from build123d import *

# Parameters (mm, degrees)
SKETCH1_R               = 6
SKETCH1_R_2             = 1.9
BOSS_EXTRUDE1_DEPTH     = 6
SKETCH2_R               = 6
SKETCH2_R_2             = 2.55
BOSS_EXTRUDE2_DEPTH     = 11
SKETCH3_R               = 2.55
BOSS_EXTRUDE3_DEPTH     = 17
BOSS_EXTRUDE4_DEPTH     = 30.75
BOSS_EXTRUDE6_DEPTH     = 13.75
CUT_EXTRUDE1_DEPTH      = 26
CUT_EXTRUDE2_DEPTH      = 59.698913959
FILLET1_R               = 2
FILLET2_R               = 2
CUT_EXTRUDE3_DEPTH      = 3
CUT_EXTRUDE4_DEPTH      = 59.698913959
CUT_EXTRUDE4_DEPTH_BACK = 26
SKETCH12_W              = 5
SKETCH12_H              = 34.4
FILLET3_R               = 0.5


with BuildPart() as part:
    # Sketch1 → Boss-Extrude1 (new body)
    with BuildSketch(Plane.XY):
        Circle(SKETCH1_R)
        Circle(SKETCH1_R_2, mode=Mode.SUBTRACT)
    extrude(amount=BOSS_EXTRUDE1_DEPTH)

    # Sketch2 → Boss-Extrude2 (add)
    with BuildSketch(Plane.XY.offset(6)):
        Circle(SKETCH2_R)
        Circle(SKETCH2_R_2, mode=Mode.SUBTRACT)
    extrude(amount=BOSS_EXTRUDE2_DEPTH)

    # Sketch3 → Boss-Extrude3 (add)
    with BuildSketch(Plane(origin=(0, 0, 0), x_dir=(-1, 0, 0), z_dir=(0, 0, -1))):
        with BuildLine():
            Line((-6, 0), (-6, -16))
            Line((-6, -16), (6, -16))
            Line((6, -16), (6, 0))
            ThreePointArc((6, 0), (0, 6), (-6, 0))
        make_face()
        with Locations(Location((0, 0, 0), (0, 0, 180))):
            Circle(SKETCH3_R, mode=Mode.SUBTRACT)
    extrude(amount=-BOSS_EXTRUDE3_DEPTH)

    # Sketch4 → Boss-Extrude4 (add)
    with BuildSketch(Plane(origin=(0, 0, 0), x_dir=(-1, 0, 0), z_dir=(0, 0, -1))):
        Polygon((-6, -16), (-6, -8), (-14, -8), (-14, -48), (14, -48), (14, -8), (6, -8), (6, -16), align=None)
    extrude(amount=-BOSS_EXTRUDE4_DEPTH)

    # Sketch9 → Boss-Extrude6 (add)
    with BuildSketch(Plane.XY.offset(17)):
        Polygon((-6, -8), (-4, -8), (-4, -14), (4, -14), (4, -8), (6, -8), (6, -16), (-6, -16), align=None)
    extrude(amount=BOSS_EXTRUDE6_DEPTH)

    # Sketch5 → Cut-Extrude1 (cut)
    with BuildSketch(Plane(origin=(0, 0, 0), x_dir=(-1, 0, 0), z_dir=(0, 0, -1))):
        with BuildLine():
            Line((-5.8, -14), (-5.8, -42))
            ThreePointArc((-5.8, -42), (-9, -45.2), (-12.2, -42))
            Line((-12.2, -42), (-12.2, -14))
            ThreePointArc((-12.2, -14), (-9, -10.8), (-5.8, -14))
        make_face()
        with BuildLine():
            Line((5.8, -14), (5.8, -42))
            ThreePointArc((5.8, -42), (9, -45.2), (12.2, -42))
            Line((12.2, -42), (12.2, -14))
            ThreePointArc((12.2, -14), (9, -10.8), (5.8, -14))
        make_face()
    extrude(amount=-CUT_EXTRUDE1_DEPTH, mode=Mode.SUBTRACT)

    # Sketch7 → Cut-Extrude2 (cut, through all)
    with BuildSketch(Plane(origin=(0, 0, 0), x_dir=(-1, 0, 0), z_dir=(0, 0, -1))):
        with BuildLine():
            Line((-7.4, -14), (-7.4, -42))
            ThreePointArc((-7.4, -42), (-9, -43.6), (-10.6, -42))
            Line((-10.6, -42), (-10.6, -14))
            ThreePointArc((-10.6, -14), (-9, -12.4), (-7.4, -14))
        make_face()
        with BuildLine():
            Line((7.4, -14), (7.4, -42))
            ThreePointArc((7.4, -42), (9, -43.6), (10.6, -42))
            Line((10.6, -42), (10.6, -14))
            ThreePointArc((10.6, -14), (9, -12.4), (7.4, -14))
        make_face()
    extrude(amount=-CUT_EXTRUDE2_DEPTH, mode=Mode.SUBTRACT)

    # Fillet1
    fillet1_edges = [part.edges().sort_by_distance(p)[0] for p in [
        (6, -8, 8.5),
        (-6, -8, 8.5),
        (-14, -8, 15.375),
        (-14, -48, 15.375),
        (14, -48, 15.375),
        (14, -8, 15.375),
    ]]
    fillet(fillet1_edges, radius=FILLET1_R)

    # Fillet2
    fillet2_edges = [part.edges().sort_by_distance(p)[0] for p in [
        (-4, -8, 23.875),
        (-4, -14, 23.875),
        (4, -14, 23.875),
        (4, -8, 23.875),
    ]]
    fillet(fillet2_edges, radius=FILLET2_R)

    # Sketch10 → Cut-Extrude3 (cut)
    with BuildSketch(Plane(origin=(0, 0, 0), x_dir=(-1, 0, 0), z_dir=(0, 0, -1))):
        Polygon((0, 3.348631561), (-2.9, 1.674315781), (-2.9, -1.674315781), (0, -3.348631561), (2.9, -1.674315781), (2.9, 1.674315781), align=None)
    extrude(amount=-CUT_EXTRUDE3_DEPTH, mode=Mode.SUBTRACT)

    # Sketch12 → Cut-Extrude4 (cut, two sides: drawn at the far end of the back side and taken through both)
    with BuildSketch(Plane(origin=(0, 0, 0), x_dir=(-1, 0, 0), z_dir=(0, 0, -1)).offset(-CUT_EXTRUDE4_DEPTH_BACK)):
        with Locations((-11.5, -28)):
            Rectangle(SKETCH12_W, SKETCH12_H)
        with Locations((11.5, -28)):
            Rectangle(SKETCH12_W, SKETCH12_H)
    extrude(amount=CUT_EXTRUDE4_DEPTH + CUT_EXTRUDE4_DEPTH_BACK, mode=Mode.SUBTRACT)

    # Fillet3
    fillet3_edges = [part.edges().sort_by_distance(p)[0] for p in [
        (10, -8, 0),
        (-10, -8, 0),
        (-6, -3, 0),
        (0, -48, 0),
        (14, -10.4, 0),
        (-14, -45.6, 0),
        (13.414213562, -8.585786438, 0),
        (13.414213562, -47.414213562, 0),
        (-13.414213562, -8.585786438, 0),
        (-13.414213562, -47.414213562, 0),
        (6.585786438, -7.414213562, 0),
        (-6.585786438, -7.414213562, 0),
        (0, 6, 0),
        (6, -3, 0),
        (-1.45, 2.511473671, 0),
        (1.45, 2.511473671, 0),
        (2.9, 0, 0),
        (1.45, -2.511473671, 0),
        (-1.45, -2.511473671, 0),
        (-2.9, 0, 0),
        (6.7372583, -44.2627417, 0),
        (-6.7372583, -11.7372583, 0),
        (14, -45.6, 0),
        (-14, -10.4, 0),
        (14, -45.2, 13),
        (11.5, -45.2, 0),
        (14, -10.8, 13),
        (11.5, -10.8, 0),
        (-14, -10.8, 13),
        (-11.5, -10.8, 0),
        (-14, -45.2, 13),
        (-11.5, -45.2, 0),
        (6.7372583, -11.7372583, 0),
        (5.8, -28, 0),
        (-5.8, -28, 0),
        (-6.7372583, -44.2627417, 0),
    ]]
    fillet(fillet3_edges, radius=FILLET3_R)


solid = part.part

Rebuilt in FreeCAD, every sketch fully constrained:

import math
import FreeCAD as App
import Part
import Sketcher
from FreeCAD import Vector
Q = App.Units.Quantity


def edges_at(feature, points):
    """Names of the edges that pass closest to the given points."""
    edges = feature.Shape.Edges
    near = lambda p: min(range(len(edges)), key=lambda i: edges[i].distToShape(Part.Vertex(*p))[0])
    return sorted({f"Edge{near(p) + 1}" for p in points})

doc = App.newDocument("Part")
body = doc.addObject("PartDesign::Body", "Body")

sketch1 = doc.addObject("Sketcher::SketchObject", "Sketch")
body.addObject(sketch1)
sketch1.AttachmentSupport = (doc.XY_Plane, [""])
sketch1.MapMode = "FlatFace"
sketch1.addGeometry([
    Part.Circle(Vector(0, 0, 0), Vector(0, 0, 1), 6),
    Part.Circle(Vector(0, 0, 0), Vector(0, 0, 1), 1.9),
], False)
sketch1.addConstraint([
    Sketcher.Constraint("Coincident", 0, 3, -1, 1),
    Sketcher.Constraint("Coincident", 1, 3, -1, 1),
    Sketcher.Constraint("Diameter", 0, Q("12 mm")),
    Sketcher.Constraint("Diameter", 1, Q("3.8 mm")),
])
pad1 = doc.addObject("PartDesign::Pad", "Pad")
body.addObject(pad1)
pad1.Profile = sketch1
pad1.Length = 6

sketch2 = doc.addObject("Sketcher::SketchObject", "Sketch001")
body.addObject(sketch2)
sketch2.AttachmentSupport = (doc.XY_Plane, [""])
sketch2.MapMode = "FlatFace"
sketch2.AttachmentOffset = App.Placement(Vector(0, 0, 6), App.Rotation())
sketch2.addGeometry([
    Part.Circle(Vector(0, 0, 0), Vector(0, 0, 1), 6),
    Part.Circle(Vector(0, 0, 0), Vector(0, 0, 1), 2.5),
], False)
sketch2.addConstraint([
    Sketcher.Constraint("Coincident", 0, 3, -1, 1),
    Sketcher.Constraint("Coincident", 1, 3, -1, 1),
    Sketcher.Constraint("Diameter", 0, Q("12 mm")),
    Sketcher.Constraint("Diameter", 1, Q("5.1 mm")),
])
pad2 = doc.addObject("PartDesign::Pad", "Pad001")
body.addObject(pad2)
pad2.Profile = sketch2
pad2.Length = 11

sketch3 = doc.addObject("Sketcher::SketchObject", "Sketch002")
body.addObject(sketch3)
sketch3.AttachmentSupport = (doc.XY_Plane, [""])
sketch3.MapMode = "FlatFace"
sketch3.addGeometry([
    Part.LineSegment(Vector(6, 0, 0), Vector(6, -16, 0)),
    Part.LineSegment(Vector(6, -16, 0), Vector(-6, -16, 0)),
    Part.LineSegment(Vector(-6, -16, 0), Vector(-6, 0, 0)),
    Part.ArcOfCircle(Part.Circle(Vector(0, 0, 0), Vector(0, 0, 1), 6), math.radians(0), math.radians(180)),
    Part.Circle(Vector(0, 0, 0), Vector(0, 0, 1), 2.5),
], False)
sketch3.addConstraint([
    Sketcher.Constraint("Coincident", 0, 2, 1, 1),
    Sketcher.Constraint("Coincident", 1, 2, 2, 1),
    Sketcher.Constraint("Tangent", 2, 2, 3, 2),
    Sketcher.Constraint("Tangent", 3, 1, 0, 1),
    Sketcher.Constraint("Vertical", 0),
    Sketcher.Constraint("Horizontal", 1),
    Sketcher.Constraint("Vertical", 2),
    Sketcher.Constraint("Coincident", 3, 3, -1, 1),
    Sketcher.Constraint("Coincident", 4, 3, -1, 1),
    Sketcher.Constraint("Radius", 3, Q("6 mm")),
    Sketcher.Constraint("Diameter", 4, Q("5.1 mm")),
    Sketcher.Constraint("DistanceY", 0, 2, 0, 1, Q("16 mm")),
])
pad3 = doc.addObject("PartDesign::Pad", "Pad002")
body.addObject(pad3)
pad3.Profile = sketch3
pad3.Length = 17

sketch4 = doc.addObject("Sketcher::SketchObject", "Sketch003")
body.addObject(sketch4)
sketch4.AttachmentSupport = (doc.XY_Plane, [""])
sketch4.MapMode = "FlatFace"
sketch4.addGeometry([
    Part.LineSegment(Vector(6, -16, 0), Vector(6, -8, 0)),
    Part.LineSegment(Vector(6, -8, 0), Vector(14, -8, 0)),
    Part.LineSegment(Vector(14, -8, 0), Vector(14, -48, 0)),
    Part.LineSegment(Vector(14, -48, 0), Vector(-14, -48, 0)),
    Part.LineSegment(Vector(-14, -48, 0), Vector(-14, -8, 0)),
    Part.LineSegment(Vector(-14, -8, 0), Vector(-6, -8, 0)),
    Part.LineSegment(Vector(-6, -8, 0), Vector(-6, -16, 0)),
    Part.LineSegment(Vector(-6, -16, 0), Vector(6, -16, 0)),
], False)
sketch4.addConstraint([
    Sketcher.Constraint("Coincident", 0, 2, 1, 1),
    Sketcher.Constraint("Coincident", 1, 2, 2, 1),
    Sketcher.Constraint("Coincident", 2, 2, 3, 1),
    Sketcher.Constraint("Coincident", 3, 2, 4, 1),
    Sketcher.Constraint("Coincident", 4, 2, 5, 1),
    Sketcher.Constraint("Coincident", 5, 2, 6, 1),
    Sketcher.Constraint("Coincident", 6, 2, 7, 1),
    Sketcher.Constraint("Coincident", 7, 2, 0, 1),
    Sketcher.Constraint("Vertical", 0),
    Sketcher.Constraint("Horizontal", 1),
    Sketcher.Constraint("Vertical", 2),
    Sketcher.Constraint("Horizontal", 3),
    Sketcher.Constraint("Vertical", 4),
    Sketcher.Constraint("Horizontal", 5),
    Sketcher.Constraint("Vertical", 6),
    Sketcher.Constraint("Horizontal", 7),
    Sketcher.Constraint("Symmetric", 1, 2, 4, 2, -2),
    Sketcher.Constraint("Equal", 1, 5),
    Sketcher.Constraint("Equal", 5, 0),
    Sketcher.Constraint("DistanceX", 1, 1, 1, 2, Q("8 mm")),
    Sketcher.Constraint("DistanceX", 3, 2, 3, 1, Q("28 mm")),
    Sketcher.Constraint("DistanceY", 2, 2, 2, 1, Q("40 mm")),
    Sketcher.Constraint("DistanceY", 0, 2, -1, 1, Q("8 mm")),
])
pad4 = doc.addObject("PartDesign::Pad", "Pad003")
body.addObject(pad4)
pad4.Profile = sketch4
pad4.Length = 30.75

sketch5 = doc.addObject("Sketcher::SketchObject", "Sketch004")
body.addObject(sketch5)
sketch5.AttachmentSupport = (doc.XY_Plane, [""])
sketch5.MapMode = "FlatFace"
sketch5.AttachmentOffset = App.Placement(Vector(0, 0, 17), App.Rotation())
sketch5.addGeometry([
    Part.LineSegment(Vector(-4, -8, 0), Vector(-6, -8, 0)),
    Part.LineSegment(Vector(-6, -8, 0), Vector(-6, -16, 0)),
    Part.LineSegment(Vector(-6, -16, 0), Vector(6, -16, 0)),
    Part.LineSegment(Vector(6, -16, 0), Vector(6, -8, 0)),
    Part.LineSegment(Vector(6, -8, 0), Vector(4, -8, 0)),
    Part.LineSegment(Vector(4, -8, 0), Vector(4, -14, 0)),
    Part.LineSegment(Vector(4, -14, 0), Vector(-4, -14, 0)),
    Part.LineSegment(Vector(-4, -14, 0), Vector(-4, -8, 0)),
], False)
sketch5.addConstraint([
    Sketcher.Constraint("Coincident", 0, 2, 1, 1),
    Sketcher.Constraint("Coincident", 1, 2, 2, 1),
    Sketcher.Constraint("Coincident", 2, 2, 3, 1),
    Sketcher.Constraint("Coincident", 3, 2, 4, 1),
    Sketcher.Constraint("Coincident", 4, 2, 5, 1),
    Sketcher.Constraint("Coincident", 5, 2, 6, 1),
    Sketcher.Constraint("Coincident", 6, 2, 7, 1),
    Sketcher.Constraint("Coincident", 7, 2, 0, 1),
    Sketcher.Constraint("Horizontal", 0),
    Sketcher.Constraint("Vertical", 1),
    Sketcher.Constraint("Horizontal", 2),
    Sketcher.Constraint("Vertical", 3),
    Sketcher.Constraint("Horizontal", 4),
    Sketcher.Constraint("Vertical", 5),
    Sketcher.Constraint("Horizontal", 6),
    Sketcher.Constraint("Vertical", 7),
    Sketcher.Constraint("Symmetric", 0, 2, 3, 2, -2),
    Sketcher.Constraint("Equal", 0, 4),
    Sketcher.Constraint("Equal", 6, 1),
    Sketcher.Constraint("DistanceX", 0, 2, 0, 1, Q("2 mm")),
    Sketcher.Constraint("DistanceX", 2, 1, 2, 2, Q("12 mm")),
    Sketcher.Constraint("DistanceY", 5, 2, 5, 1, Q("6 mm")),
    Sketcher.Constraint("DistanceY", 0, 2, -1, 1, Q("8 mm")),
])
pad5 = doc.addObject("PartDesign::Pad", "Pad004")
body.addObject(pad5)
pad5.Profile = sketch5
pad5.Length = 13.75

sketch6 = doc.addObject("Sketcher::SketchObject", "Sketch005")
body.addObject(sketch6)
sketch6.AttachmentSupport = (doc.XY_Plane, [""])
sketch6.MapMode = "FlatFace"
sketch6.addGeometry([
    Part.LineSegment(Vector(5.8, -42, 0), Vector(5.8, -14, 0)),
    Part.ArcOfCircle(Part.Circle(Vector(9, -14, 0), Vector(0, 0, 1), 3.2), math.radians(0), math.radians(180)),
    Part.LineSegment(Vector(12.2, -14, 0), Vector(12.2, -42, 0)),
    Part.ArcOfCircle(Part.Circle(Vector(9, -42, 0), Vector(0, 0, 1), 3.2), math.radians(180), math.radians(360)),
    Part.LineSegment(Vector(-5.8, -14, 0), Vector(-5.8, -42, 0)),
    Part.ArcOfCircle(Part.Circle(Vector(-9, -42, 0), Vector(0, 0, 1), 3.2), math.radians(180), math.radians(360)),
    Part.LineSegment(Vector(-12.2, -42, 0), Vector(-12.2, -14, 0)),
    Part.ArcOfCircle(Part.Circle(Vector(-9, -14, 0), Vector(0, 0, 1), 3.2), math.radians(0), math.radians(180)),
], False)
sketch6.addConstraint([
    Sketcher.Constraint("Tangent", 0, 2, 1, 2),
    Sketcher.Constraint("Tangent", 1, 1, 2, 1),
    Sketcher.Constraint("Tangent", 2, 2, 3, 2),
    Sketcher.Constraint("Tangent", 3, 1, 0, 1),
    Sketcher.Constraint("Tangent", 4, 2, 5, 2),
    Sketcher.Constraint("Tangent", 5, 1, 6, 1),
    Sketcher.Constraint("Tangent", 6, 2, 7, 2),
    Sketcher.Constraint("Tangent", 7, 1, 4, 1),
    Sketcher.Constraint("Vertical", 0),
    Sketcher.Constraint("Vertical", 2),
    Sketcher.Constraint("Vertical", 4),
    Sketcher.Constraint("Vertical", 6),
    Sketcher.Constraint("Equal", 3, 5),
    Sketcher.Constraint("Symmetric", 3, 3, 5, 3, -2),
    Sketcher.Constraint("Horizontal", 1, 3, 7, 3),
    Sketcher.Constraint("Radius", 1, Q("3.2 mm")),
    Sketcher.Constraint("DistanceY", 0, 1, 0, 2, Q("28 mm")),
    Sketcher.Constraint("DistanceX", -1, 1, 1, 3, Q("9 mm")),
    Sketcher.Constraint("DistanceY", 1, 3, -1, 1, Q("14 mm")),
])
pocket1 = doc.addObject("PartDesign::Pocket", "Pocket")
body.addObject(pocket1)
pocket1.Profile = sketch6
pocket1.Length = 26
pocket1.Reversed = True

sketch7 = doc.addObject("Sketcher::SketchObject", "Sketch006")
body.addObject(sketch7)
sketch7.AttachmentSupport = (doc.XY_Plane, [""])
sketch7.MapMode = "FlatFace"
sketch7.addGeometry([
    Part.LineSegment(Vector(7.4, -42, 0), Vector(7.4, -14, 0)),
    Part.ArcOfCircle(Part.Circle(Vector(9, -14, 0), Vector(0, 0, 1), 1.6), math.radians(0), math.radians(180)),
    Part.LineSegment(Vector(10.6, -14, 0), Vector(10.6, -42, 0)),
    Part.ArcOfCircle(Part.Circle(Vector(9, -42, 0), Vector(0, 0, 1), 1.6), math.radians(180), math.radians(360)),
    Part.LineSegment(Vector(-7.4, -14, 0), Vector(-7.4, -42, 0)),
    Part.ArcOfCircle(Part.Circle(Vector(-9, -42, 0), Vector(0, 0, 1), 1.6), math.radians(180), math.radians(360)),
    Part.LineSegment(Vector(-10.6, -42, 0), Vector(-10.6, -14, 0)),
    Part.ArcOfCircle(Part.Circle(Vector(-9, -14, 0), Vector(0, 0, 1), 1.6), math.radians(0), math.radians(180)),
], False)
sketch7.addConstraint([
    Sketcher.Constraint("Tangent", 0, 2, 1, 2),
    Sketcher.Constraint("Tangent", 1, 1, 2, 1),
    Sketcher.Constraint("Tangent", 2, 2, 3, 2),
    Sketcher.Constraint("Tangent", 3, 1, 0, 1),
    Sketcher.Constraint("Tangent", 4, 2, 5, 2),
    Sketcher.Constraint("Tangent", 5, 1, 6, 1),
    Sketcher.Constraint("Tangent", 6, 2, 7, 2),
    Sketcher.Constraint("Tangent", 7, 1, 4, 1),
    Sketcher.Constraint("Vertical", 0),
    Sketcher.Constraint("Vertical", 2),
    Sketcher.Constraint("Vertical", 4),
    Sketcher.Constraint("Vertical", 6),
    Sketcher.Constraint("Equal", 3, 5),
    Sketcher.Constraint("Symmetric", 3, 3, 5, 3, -2),
    Sketcher.Constraint("Horizontal", 1, 3, 7, 3),
    Sketcher.Constraint("Radius", 1, Q("1.6 mm")),
    Sketcher.Constraint("DistanceY", 0, 1, 0, 2, Q("28 mm")),
    Sketcher.Constraint("DistanceX", -1, 1, 1, 3, Q("9 mm")),
    Sketcher.Constraint("DistanceY", 1, 3, -1, 1, Q("14 mm")),
])
pocket2 = doc.addObject("PartDesign::Pocket", "Pocket001")
body.addObject(pocket2)
pocket2.Profile = sketch7
pocket2.Type = "ThroughAll"
pocket2.Reversed = True
doc.recompute()

fillet = doc.addObject("PartDesign::Fillet", "Fillet")
body.addObject(fillet)
fillet.Base = (pocket2, edges_at(pocket2, [
    (6, -8, 8.5),
    (-6, -8, 8.5),
    (-14, -8, 15.375),
    (-14, -48, 15.375),
    (14, -48, 15.375),
    (14, -8, 15.375),
]))
fillet.Radius = 2
doc.recompute()

fillet2 = doc.addObject("PartDesign::Fillet", "Fillet001")
body.addObject(fillet2)
fillet2.Base = (fillet, edges_at(fillet, [
    (-4, -8, 23.875),
    (-4, -14, 23.875),
    (4, -14, 23.875),
    (4, -8, 23.875),
]))
fillet2.Radius = 2

sketch8 = doc.addObject("Sketcher::SketchObject", "Sketch007")
body.addObject(sketch8)
sketch8.AttachmentSupport = (doc.XY_Plane, [""])
sketch8.MapMode = "FlatFace"
sketch8.addGeometry([
    Part.LineSegment(Vector(0, 3.3, 0), Vector(2.9, 1.7, 0)),
    Part.LineSegment(Vector(2.9, 1.7, 0), Vector(2.9, -1.7, 0)),
    Part.LineSegment(Vector(2.9, -1.7, 0), Vector(0, -3.3, 0)),
    Part.LineSegment(Vector(0, -3.3, 0), Vector(-2.9, -1.7, 0)),
    Part.LineSegment(Vector(-2.9, -1.7, 0), Vector(-2.9, 1.7, 0)),
    Part.LineSegment(Vector(-2.9, 1.7, 0), Vector(0, 3.3, 0)),
], False)
sketch8.addConstraint([
    Sketcher.Constraint("Coincident", 0, 2, 1, 1),
    Sketcher.Constraint("Coincident", 1, 2, 2, 1),
    Sketcher.Constraint("Coincident", 2, 2, 3, 1),
    Sketcher.Constraint("Coincident", 3, 2, 4, 1),
    Sketcher.Constraint("Coincident", 4, 2, 5, 1),
    Sketcher.Constraint("Coincident", 5, 2, 0, 1),
    Sketcher.Constraint("Vertical", 1),
    Sketcher.Constraint("Vertical", 4),
    Sketcher.Constraint("Symmetric", 0, 2, 3, 2, -1, 1),
    Sketcher.Constraint("Symmetric", 2, 2, 5, 2, -1, 1),
    Sketcher.Constraint("PointOnObject", 2, 2, -2),
    Sketcher.Constraint("Parallel", 2, 5),
    Sketcher.Constraint("Horizontal", 1, 2, 3, 2),
    Sketcher.Constraint("Angle", 0, Q("-30 deg")),
    Sketcher.Constraint("DistanceX", -1, 1, 0, 2, Q("2.9 mm")),
    Sketcher.Constraint("DistanceY", 1, 2, 1, 1, Q("3.348632 mm")),
])
pocket3 = doc.addObject("PartDesign::Pocket", "Pocket002")
body.addObject(pocket3)
pocket3.Profile = sketch8
pocket3.Length = 3
pocket3.Reversed = True

sketch9 = doc.addObject("Sketcher::SketchObject", "Sketch008")
body.addObject(sketch9)
sketch9.AttachmentSupport = (doc.XY_Plane, [""])
sketch9.MapMode = "FlatFace"
sketch9.addGeometry([
    Part.LineSegment(Vector(14, -11, 0), Vector(14, -45, 0)),
    Part.LineSegment(Vector(14, -45, 0), Vector(9, -45, 0)),
    Part.LineSegment(Vector(9, -45, 0), Vector(9, -11, 0)),
    Part.LineSegment(Vector(9, -11, 0), Vector(14, -11, 0)),
    Part.LineSegment(Vector(-9, -11, 0), Vector(-9, -45, 0)),
    Part.LineSegment(Vector(-9, -45, 0), Vector(-14, -45, 0)),
    Part.LineSegment(Vector(-14, -45, 0), Vector(-14, -11, 0)),
    Part.LineSegment(Vector(-14, -11, 0), Vector(-9, -11, 0)),
], False)
sketch9.addConstraint([
    Sketcher.Constraint("Coincident", 0, 2, 1, 1),
    Sketcher.Constraint("Coincident", 1, 2, 2, 1),
    Sketcher.Constraint("Coincident", 2, 2, 3, 1),
    Sketcher.Constraint("Coincident", 3, 2, 0, 1),
    Sketcher.Constraint("Coincident", 4, 2, 5, 1),
    Sketcher.Constraint("Coincident", 5, 2, 6, 1),
    Sketcher.Constraint("Coincident", 6, 2, 7, 1),
    Sketcher.Constraint("Coincident", 7, 2, 4, 1),
    Sketcher.Constraint("Vertical", 0),
    Sketcher.Constraint("Horizontal", 1),
    Sketcher.Constraint("Vertical", 2),
    Sketcher.Constraint("Horizontal", 3),
    Sketcher.Constraint("Vertical", 4),
    Sketcher.Constraint("Horizontal", 5),
    Sketcher.Constraint("Vertical", 6),
    Sketcher.Constraint("Horizontal", 7),
    Sketcher.Constraint("Symmetric", 1, 2, 4, 2, -2),
    Sketcher.Constraint("Symmetric", 3, 2, 6, 2, -2),
    Sketcher.Constraint("DistanceX", 1, 2, 1, 1, Q("5 mm")),
    Sketcher.Constraint("DistanceY", 0, 2, 0, 1, Q("34.4 mm")),
    Sketcher.Constraint("DistanceX", -1, 1, 0, 2, Q("14 mm")),
    Sketcher.Constraint("DistanceY", 0, 2, -1, 1, Q("45.2 mm")),
])
pocket4 = doc.addObject("PartDesign::Pocket", "Pocket003")
body.addObject(pocket4)
pocket4.Profile = sketch9
pocket4.Type = "TwoLengths"
pocket4.Length = 59.698914
pocket4.Length2 = 26
doc.recompute()

fillet3 = doc.addObject("PartDesign::Fillet", "Fillet002")
body.addObject(fillet3)
fillet3.Base = (pocket4, edges_at(pocket4, [
    (10, -8, 0),
    (-10, -8, 0),
    (-6, -3, 0),
    (0, -48, 0),
    (14, -10.4, 0),
    (-14, -45.6, 0),
    (13.414, -8.586, 0),
    (13.414, -47.414, 0),
    (-13.414, -8.586, 0),
    (-13.414, -47.414, 0),
    (6.586, -7.414, 0),
    (-6.586, -7.414, 0),
    (0, 6, 0),
    (6, -3, 0),
    (-1.45, 2.511, 0),
    (1.45, 2.511, 0),
    (2.9, 0, 0),
    (1.45, -2.511, 0),
    (-1.45, -2.511, 0),
    (-2.9, 0, 0),
    (6.737, -44.263, 0),
    (-6.737, -11.737, 0),
    (14, -45.6, 0),
    (-14, -10.4, 0),
    (14, -45.2, 13),
    (11.5, -45.2, 0),
    (14, -10.8, 13),
    (11.5, -10.8, 0),
    (-14, -10.8, 13),
    (-11.5, -10.8, 0),
    (-14, -45.2, 13),
    (-11.5, -45.2, 0),
    (6.737, -11.737, 0),
    (5.8, -28, 0),
    (-5.8, -28, 0),
    (-6.737, -44.263, 0),
]))
fillet3.Radius = 0.5

doc.recompute()
